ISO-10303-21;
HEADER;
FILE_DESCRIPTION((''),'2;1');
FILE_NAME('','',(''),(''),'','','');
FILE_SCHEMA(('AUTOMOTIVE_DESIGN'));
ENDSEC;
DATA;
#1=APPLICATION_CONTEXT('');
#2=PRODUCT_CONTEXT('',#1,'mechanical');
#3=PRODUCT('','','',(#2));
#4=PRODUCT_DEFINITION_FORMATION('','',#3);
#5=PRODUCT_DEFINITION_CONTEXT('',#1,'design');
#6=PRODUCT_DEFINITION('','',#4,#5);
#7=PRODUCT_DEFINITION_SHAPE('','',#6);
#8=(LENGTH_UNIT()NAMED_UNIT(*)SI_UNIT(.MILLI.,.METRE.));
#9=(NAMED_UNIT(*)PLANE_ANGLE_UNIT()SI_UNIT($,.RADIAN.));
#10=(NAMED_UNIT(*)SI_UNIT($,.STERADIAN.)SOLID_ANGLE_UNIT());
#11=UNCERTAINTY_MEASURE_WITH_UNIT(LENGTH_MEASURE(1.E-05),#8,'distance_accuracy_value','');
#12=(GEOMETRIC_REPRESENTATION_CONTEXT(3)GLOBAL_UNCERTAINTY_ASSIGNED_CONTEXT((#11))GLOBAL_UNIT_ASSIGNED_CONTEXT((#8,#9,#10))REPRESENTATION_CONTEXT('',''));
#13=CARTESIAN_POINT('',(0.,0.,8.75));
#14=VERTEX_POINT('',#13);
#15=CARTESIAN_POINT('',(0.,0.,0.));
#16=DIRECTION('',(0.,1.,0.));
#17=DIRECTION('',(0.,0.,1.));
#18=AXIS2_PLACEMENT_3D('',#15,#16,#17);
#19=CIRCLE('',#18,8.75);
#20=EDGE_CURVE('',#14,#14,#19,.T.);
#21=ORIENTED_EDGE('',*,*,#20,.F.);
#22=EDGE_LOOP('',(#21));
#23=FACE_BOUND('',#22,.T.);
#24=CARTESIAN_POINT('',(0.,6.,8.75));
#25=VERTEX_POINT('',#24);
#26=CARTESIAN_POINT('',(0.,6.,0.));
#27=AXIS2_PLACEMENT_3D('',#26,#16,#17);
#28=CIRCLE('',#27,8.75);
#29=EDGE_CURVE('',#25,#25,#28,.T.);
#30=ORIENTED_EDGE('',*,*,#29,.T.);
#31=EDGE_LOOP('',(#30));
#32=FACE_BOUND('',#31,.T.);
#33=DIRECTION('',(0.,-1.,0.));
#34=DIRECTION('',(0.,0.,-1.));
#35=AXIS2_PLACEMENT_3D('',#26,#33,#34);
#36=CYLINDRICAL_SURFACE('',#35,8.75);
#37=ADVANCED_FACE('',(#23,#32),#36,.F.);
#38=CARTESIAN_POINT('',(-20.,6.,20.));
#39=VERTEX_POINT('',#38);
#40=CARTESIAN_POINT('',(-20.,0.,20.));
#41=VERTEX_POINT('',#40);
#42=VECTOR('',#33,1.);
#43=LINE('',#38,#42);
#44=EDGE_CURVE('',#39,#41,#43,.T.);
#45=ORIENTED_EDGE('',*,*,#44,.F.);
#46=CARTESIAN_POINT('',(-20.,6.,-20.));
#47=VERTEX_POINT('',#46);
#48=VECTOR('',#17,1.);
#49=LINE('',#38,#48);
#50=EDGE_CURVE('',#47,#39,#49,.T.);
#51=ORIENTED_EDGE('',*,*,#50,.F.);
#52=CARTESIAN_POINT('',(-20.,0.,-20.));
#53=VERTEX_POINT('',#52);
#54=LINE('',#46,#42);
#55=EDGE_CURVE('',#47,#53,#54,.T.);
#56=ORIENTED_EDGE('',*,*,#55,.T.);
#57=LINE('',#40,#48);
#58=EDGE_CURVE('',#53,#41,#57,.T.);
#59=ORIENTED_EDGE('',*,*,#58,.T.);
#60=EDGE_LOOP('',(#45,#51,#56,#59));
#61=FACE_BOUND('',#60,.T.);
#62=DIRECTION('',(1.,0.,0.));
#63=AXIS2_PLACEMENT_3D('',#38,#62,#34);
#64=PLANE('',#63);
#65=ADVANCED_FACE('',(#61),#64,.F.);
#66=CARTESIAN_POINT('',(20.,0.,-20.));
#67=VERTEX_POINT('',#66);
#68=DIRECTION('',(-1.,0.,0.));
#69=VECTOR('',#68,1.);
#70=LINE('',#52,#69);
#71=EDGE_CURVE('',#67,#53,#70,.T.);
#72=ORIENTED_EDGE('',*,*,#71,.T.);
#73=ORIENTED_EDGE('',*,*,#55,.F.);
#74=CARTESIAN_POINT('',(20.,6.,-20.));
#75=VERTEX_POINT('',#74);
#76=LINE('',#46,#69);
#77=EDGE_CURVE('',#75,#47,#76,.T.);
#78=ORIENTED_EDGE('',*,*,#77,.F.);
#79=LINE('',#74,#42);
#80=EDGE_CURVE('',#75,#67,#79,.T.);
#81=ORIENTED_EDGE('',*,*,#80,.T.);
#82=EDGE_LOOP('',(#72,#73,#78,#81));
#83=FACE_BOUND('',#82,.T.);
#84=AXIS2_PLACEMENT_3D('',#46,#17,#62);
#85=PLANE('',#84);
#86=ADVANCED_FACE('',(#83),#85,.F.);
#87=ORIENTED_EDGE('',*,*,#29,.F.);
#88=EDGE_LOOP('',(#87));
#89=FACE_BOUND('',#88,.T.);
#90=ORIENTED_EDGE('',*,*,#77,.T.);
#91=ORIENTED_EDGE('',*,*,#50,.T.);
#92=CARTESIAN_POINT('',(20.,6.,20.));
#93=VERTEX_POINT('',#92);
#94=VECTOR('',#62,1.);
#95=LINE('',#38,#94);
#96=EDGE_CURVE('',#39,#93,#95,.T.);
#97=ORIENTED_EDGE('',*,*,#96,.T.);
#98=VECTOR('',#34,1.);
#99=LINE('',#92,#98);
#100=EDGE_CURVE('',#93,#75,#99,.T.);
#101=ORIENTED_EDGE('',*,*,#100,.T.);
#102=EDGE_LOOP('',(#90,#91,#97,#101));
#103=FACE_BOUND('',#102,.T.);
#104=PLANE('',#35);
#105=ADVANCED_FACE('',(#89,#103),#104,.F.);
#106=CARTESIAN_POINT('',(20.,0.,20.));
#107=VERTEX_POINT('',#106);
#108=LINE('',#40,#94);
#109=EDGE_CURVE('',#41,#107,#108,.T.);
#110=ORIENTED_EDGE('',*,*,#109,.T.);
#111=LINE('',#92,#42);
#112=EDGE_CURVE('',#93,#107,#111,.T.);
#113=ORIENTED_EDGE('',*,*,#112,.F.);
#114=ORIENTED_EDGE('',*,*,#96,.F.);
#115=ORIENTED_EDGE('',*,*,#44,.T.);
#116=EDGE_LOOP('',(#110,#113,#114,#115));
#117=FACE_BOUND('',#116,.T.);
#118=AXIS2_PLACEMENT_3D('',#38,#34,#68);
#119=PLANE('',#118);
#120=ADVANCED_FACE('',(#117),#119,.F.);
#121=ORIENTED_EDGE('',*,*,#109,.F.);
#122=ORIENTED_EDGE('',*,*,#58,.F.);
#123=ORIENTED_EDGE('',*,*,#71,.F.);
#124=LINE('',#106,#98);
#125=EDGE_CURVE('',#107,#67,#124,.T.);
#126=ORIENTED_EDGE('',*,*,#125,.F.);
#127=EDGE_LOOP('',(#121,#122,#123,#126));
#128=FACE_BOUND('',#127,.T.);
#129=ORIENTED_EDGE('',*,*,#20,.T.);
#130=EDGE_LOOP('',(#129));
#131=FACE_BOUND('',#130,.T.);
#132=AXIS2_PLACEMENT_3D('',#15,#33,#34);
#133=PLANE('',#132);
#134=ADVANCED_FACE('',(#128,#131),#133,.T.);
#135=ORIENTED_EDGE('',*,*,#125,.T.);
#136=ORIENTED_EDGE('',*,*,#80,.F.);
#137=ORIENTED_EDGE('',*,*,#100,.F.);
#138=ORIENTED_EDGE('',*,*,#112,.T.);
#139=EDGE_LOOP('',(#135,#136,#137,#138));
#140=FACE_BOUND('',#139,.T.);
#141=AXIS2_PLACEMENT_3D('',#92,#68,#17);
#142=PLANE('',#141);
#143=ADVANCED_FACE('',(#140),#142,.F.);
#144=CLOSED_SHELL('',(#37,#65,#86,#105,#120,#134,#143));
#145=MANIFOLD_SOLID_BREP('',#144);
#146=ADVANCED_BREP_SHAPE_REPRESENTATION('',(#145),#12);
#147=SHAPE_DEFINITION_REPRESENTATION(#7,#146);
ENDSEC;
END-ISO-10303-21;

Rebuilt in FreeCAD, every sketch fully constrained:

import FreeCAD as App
import Part
import Sketcher

V = App.Vector


def add_polygon(sketch, points):
    """Adds a closed chain of lines whose ends are joined by coincident constraints."""
    first, n = sketch.GeometryCount, len(points)
    for a, b in zip(points, points[1:] + points[:1]):
        sketch.addGeometry(Part.LineSegment(App.Vector(*a, 0), App.Vector(*b, 0)), False)
    for i in range(n):
        sketch.addConstraint(Sketcher.Constraint("Coincident", first + i, 2, first + (i + 1) % n, 1))

doc = App.newDocument("Part")
body = doc.addObject("PartDesign::Body", "Body")

sketch1 = doc.addObject("Sketcher::SketchObject", "Sketch")
body.addObject(sketch1)
sketch1.AttachmentSupport = (doc.XZ_Plane, [""])
sketch1.MapMode = "FlatFace"
add_polygon(sketch1, [(-20, -20), (-20, 20), (20, 20), (20, -20)])
sketch1.addGeometry(Part.Circle(V(0, 0, 0), V(0, 0, 1), 8.75), False)
sketch1.addConstraint(Sketcher.Constraint("Vertical", 0))
sketch1.addConstraint(Sketcher.Constraint("Horizontal", 1))
sketch1.addConstraint(Sketcher.Constraint("Vertical", 2))
sketch1.addConstraint(Sketcher.Constraint("Horizontal", 3))
sketch1.addConstraint(Sketcher.Constraint("Coincident", 4, 3, -1, 1))
sketch1.addConstraint(Sketcher.Constraint("Symmetric", 0, 2, 2, 2, -1, 1))
sketch1.addConstraint(Sketcher.Constraint("Equal", 3, 0))
sketch1.addConstraint(Sketcher.Constraint("Diameter", 4, 17.5))
sketch1.addConstraint(Sketcher.Constraint("DistanceX", 1, 1, 1, 2, 40.0))
pad1 = doc.addObject("PartDesign::Pad", "Pad")
body.addObject(pad1)
pad1.Profile = sketch1
pad1.Length = 6
pad1.Reversed = True

doc.recompute()
